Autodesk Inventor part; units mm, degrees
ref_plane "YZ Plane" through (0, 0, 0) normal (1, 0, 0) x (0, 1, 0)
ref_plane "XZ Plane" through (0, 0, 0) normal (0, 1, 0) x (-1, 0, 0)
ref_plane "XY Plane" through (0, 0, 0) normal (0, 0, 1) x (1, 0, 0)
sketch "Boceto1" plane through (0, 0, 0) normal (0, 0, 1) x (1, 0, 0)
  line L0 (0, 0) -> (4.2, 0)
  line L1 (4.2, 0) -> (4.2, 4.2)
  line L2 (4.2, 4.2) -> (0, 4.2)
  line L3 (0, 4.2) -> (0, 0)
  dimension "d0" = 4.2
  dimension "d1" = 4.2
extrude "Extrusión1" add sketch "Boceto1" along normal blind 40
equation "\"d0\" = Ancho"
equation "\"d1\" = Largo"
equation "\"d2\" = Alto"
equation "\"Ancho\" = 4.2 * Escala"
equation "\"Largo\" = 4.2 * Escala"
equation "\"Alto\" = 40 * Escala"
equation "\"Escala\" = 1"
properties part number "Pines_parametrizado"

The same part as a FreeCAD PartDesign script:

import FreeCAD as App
import Part
import Sketcher
Q = App.Units.Quantity

doc = App.newDocument("Part")
body = doc.addObject("PartDesign::Body", "Body")

# Sketch on XY plane
sketch1 = body.newObject("Sketcher::SketchObject", "Sketch")
sketch1.AttachmentSupport = (doc.getObject("XY_Plane"), [""])
sketch1.MapMode = "FlatFace"
sketch1.addGeometry([
    Part.LineSegment(App.Vector(0, 4.2, 0), App.Vector(0, 0, 0)),
    Part.LineSegment(App.Vector(0, 0, 0), App.Vector(4.2, 0, 0)),
    Part.LineSegment(App.Vector(4.2, 0, 0), App.Vector(4.2, 4.2, 0)),
    Part.LineSegment(App.Vector(4.2, 4.2, 0), App.Vector(0, 4.2, 0)),
], False)
sketch1.addConstraint([
    Sketcher.Constraint("Coincident", 0, 2, 1, 1),
    Sketcher.Constraint("Coincident", 1, 2, 2, 1),
    Sketcher.Constraint("Coincident", 2, 2, 3, 1),
    Sketcher.Constraint("Coincident", 3, 2, 0, 1),
    Sketcher.Constraint("Vertical", 0),
    Sketcher.Constraint("Horizontal", 1),
    Sketcher.Constraint("Vertical", 2),
    Sketcher.Constraint("Horizontal", 3),
    Sketcher.Constraint("Coincident", 0, 2, -1, 1),
    Sketcher.Constraint("Equal", 3, 0),
    Sketcher.Constraint("DistanceX", 1, 1, 1, 2, Q("4.2 mm")),
])
pad1 = body.newObject("PartDesign::Pad", "Pad")
pad1.Profile = sketch1
pad1.Length = 40

doc.recompute()
